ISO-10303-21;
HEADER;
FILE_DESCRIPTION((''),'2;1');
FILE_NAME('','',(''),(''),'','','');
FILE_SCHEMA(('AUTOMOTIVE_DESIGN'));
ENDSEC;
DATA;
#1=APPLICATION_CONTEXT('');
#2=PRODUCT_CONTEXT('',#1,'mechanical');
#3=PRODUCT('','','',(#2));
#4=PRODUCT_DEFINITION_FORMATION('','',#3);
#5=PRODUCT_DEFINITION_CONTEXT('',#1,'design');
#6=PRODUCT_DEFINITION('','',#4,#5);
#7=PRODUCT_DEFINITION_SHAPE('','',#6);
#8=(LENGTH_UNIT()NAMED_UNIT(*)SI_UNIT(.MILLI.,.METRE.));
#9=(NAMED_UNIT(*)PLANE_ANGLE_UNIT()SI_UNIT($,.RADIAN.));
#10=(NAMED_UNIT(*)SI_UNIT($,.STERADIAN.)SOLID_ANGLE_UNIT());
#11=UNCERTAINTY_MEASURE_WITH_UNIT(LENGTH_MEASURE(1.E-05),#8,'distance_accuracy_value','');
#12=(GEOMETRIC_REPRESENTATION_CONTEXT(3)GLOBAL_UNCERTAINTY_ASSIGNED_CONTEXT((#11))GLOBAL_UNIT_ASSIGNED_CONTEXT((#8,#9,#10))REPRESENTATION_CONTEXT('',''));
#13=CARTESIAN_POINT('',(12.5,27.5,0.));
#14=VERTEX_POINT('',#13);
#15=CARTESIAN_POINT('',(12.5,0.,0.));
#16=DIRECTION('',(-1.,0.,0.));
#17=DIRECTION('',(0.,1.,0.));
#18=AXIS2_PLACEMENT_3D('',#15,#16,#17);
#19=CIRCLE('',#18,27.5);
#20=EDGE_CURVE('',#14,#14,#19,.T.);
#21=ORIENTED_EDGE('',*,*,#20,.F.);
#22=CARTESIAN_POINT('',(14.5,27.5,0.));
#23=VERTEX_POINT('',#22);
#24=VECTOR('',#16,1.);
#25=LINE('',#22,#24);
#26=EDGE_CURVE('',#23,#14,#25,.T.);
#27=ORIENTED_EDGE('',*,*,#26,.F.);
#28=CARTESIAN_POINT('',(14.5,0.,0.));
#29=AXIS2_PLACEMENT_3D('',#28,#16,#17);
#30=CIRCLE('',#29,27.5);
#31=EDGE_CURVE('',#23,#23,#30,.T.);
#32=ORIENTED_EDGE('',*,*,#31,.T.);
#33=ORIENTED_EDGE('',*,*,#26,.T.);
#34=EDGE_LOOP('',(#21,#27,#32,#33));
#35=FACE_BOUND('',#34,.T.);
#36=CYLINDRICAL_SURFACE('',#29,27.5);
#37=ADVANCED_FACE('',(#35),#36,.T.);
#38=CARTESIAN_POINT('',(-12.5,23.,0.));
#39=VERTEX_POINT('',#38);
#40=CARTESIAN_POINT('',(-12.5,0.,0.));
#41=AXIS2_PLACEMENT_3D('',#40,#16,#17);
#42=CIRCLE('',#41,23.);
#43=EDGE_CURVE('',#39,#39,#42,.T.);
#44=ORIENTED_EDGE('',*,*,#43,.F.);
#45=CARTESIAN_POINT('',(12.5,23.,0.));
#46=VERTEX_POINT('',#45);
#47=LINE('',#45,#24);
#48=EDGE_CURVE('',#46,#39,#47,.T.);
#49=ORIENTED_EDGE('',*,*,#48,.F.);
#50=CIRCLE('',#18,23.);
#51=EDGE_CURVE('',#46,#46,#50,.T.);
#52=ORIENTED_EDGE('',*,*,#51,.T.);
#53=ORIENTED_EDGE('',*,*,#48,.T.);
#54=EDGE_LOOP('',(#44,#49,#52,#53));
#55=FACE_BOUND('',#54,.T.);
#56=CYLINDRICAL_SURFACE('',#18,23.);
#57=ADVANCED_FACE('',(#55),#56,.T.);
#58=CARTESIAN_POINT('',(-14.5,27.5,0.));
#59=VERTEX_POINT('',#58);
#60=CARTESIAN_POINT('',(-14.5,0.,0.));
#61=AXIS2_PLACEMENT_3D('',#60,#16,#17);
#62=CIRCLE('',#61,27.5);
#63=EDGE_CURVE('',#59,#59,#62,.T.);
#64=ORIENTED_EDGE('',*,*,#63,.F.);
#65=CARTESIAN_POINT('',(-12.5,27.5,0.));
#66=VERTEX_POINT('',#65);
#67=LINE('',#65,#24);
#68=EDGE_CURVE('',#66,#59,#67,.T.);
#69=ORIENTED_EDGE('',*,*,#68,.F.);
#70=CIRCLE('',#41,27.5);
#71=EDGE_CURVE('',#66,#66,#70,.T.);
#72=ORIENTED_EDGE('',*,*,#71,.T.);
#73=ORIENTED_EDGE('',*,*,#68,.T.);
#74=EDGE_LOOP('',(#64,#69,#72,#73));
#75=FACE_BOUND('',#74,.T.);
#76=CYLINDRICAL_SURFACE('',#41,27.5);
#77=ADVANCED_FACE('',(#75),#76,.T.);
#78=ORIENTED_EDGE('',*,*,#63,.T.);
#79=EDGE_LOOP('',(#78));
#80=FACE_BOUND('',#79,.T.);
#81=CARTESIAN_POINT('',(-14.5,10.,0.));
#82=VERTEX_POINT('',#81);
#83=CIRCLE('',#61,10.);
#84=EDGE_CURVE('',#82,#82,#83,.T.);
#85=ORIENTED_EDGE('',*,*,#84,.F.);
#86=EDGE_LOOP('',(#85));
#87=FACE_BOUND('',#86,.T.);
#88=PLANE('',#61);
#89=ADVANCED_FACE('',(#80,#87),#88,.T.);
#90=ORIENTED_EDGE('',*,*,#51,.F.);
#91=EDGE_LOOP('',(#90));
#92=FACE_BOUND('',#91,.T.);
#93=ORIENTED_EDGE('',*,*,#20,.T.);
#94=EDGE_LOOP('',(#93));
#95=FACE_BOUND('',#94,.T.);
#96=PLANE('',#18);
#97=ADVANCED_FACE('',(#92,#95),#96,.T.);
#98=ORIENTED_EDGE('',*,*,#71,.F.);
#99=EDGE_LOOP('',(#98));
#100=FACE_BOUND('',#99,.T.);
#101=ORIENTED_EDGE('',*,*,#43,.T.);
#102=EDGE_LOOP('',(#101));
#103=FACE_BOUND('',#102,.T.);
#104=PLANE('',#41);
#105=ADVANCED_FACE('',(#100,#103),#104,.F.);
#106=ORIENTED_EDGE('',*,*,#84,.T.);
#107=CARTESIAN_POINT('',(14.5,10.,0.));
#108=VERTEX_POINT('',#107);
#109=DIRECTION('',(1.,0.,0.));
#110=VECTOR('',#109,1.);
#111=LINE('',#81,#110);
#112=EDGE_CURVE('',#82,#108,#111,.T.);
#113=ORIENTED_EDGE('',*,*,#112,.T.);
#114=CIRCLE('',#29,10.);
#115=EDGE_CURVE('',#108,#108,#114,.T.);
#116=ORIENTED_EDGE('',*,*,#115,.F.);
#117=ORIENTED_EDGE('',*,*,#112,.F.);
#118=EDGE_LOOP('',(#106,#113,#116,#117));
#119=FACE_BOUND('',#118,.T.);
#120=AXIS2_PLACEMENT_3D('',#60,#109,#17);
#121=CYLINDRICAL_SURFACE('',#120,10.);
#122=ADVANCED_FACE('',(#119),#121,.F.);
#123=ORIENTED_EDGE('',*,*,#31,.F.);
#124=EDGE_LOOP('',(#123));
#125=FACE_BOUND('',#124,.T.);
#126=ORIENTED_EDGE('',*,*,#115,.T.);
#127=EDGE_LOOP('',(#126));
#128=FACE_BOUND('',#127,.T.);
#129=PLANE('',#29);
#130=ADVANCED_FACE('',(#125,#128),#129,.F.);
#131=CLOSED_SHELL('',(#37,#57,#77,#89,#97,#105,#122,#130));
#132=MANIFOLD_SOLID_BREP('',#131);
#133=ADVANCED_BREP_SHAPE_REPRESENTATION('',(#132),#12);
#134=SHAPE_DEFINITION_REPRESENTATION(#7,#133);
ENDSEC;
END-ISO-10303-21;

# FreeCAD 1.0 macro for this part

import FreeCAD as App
import Part
import Sketcher
from FreeCAD import Vector
Q = App.Units.Quantity

doc = App.newDocument("Part")
body = doc.addObject("PartDesign::Body", "Body")

# Sketch on XY plane
sketch1 = doc.addObject("Sketcher::SketchObject", "Sketch")
body.addObject(sketch1)
sketch1.AttachmentSupport = (doc.XY_Plane, [""])
sketch1.MapMode = "FlatFace"
sketch1.addGeometry(Part.LineSegment(Vector(-14.5, 27.5, 0), Vector(-14.5, 10, 0)), False)
sketch1.addGeometry(Part.LineSegment(Vector(-14.5, 10, 0), Vector(14.5, 10, 0)), False)
sketch1.addGeometry(Part.LineSegment(Vector(14.5, 10, 0), Vector(14.5, 27.5, 0)), False)
sketch1.addGeometry(Part.LineSegment(Vector(14.5, 27.5, 0), Vector(12.5, 27.5, 0)), False)
sketch1.addGeometry(Part.LineSegment(Vector(12.5, 27.5, 0), Vector(12.5, 23, 0)), False)
sketch1.addGeometry(Part.LineSegment(Vector(12.5, 23, 0), Vector(-12.5, 23, 0)), False)
sketch1.addGeometry(Part.LineSegment(Vector(-12.5, 23, 0), Vector(-12.5, 27.5, 0)), False)
sketch1.addGeometry(Part.LineSegment(Vector(-12.5, 27.5, 0), Vector(-14.5, 27.5, 0)), False)
sketch1.addConstraint(Sketcher.Constraint("Coincident", 0, 2, 1, 1))
sketch1.addConstraint(Sketcher.Constraint("Coincident", 1, 2, 2, 1))
sketch1.addConstraint(Sketcher.Constraint("Coincident", 2, 2, 3, 1))
sketch1.addConstraint(Sketcher.Constraint("Coincident", 3, 2, 4, 1))
sketch1.addConstraint(Sketcher.Constraint("Coincident", 4, 2, 5, 1))
sketch1.addConstraint(Sketcher.Constraint("Coincident", 5, 2, 6, 1))
sketch1.addConstraint(Sketcher.Constraint("Coincident", 6, 2, 7, 1))
sketch1.addConstraint(Sketcher.Constraint("Coincident", 7, 2, 0, 1))
sketch1.addConstraint(Sketcher.Constraint("Vertical", 0))
sketch1.addConstraint(Sketcher.Constraint("Horizontal", 1))
sketch1.addConstraint(Sketcher.Constraint("Vertical", 2))
sketch1.addConstraint(Sketcher.Constraint("Horizontal", 3))
sketch1.addConstraint(Sketcher.Constraint("Vertical", 4))
sketch1.addConstraint(Sketcher.Constraint("Horizontal", 5))
sketch1.addConstraint(Sketcher.Constraint("Vertical", 6))
sketch1.addConstraint(Sketcher.Constraint("Horizontal", 7))
sketch1.addConstraint(Sketcher.Constraint("Symmetric", 3, 2, 6, 2, -2))
sketch1.addConstraint(Sketcher.Constraint("Equal", 3, 7))
sketch1.addConstraint(Sketcher.Constraint("DistanceX", 1, 1, 1, 2, Q("29 mm")))
sketch1.addConstraint(Sketcher.Constraint("DistanceX", 3, 2, 3, 1, Q("2 mm")))
sketch1.addConstraint(Sketcher.Constraint("DistanceY", 0, 2, 0, 1, Q("17.5 mm")))
sketch1.addConstraint(Sketcher.Constraint("DistanceY", 4, 2, 4, 1, Q("4.5 mm")))
sketch1.addConstraint(Sketcher.Constraint("DistanceY", -1, 1, 0, 2, Q("10 mm")))
revolution = doc.addObject("PartDesign::Revolution", "Revolution")
body.addObject(revolution)
revolution.Profile = sketch1
revolution.ReferenceAxis = (sketch1, ["H_Axis"])
revolution.Angle = 360

doc.recompute()
